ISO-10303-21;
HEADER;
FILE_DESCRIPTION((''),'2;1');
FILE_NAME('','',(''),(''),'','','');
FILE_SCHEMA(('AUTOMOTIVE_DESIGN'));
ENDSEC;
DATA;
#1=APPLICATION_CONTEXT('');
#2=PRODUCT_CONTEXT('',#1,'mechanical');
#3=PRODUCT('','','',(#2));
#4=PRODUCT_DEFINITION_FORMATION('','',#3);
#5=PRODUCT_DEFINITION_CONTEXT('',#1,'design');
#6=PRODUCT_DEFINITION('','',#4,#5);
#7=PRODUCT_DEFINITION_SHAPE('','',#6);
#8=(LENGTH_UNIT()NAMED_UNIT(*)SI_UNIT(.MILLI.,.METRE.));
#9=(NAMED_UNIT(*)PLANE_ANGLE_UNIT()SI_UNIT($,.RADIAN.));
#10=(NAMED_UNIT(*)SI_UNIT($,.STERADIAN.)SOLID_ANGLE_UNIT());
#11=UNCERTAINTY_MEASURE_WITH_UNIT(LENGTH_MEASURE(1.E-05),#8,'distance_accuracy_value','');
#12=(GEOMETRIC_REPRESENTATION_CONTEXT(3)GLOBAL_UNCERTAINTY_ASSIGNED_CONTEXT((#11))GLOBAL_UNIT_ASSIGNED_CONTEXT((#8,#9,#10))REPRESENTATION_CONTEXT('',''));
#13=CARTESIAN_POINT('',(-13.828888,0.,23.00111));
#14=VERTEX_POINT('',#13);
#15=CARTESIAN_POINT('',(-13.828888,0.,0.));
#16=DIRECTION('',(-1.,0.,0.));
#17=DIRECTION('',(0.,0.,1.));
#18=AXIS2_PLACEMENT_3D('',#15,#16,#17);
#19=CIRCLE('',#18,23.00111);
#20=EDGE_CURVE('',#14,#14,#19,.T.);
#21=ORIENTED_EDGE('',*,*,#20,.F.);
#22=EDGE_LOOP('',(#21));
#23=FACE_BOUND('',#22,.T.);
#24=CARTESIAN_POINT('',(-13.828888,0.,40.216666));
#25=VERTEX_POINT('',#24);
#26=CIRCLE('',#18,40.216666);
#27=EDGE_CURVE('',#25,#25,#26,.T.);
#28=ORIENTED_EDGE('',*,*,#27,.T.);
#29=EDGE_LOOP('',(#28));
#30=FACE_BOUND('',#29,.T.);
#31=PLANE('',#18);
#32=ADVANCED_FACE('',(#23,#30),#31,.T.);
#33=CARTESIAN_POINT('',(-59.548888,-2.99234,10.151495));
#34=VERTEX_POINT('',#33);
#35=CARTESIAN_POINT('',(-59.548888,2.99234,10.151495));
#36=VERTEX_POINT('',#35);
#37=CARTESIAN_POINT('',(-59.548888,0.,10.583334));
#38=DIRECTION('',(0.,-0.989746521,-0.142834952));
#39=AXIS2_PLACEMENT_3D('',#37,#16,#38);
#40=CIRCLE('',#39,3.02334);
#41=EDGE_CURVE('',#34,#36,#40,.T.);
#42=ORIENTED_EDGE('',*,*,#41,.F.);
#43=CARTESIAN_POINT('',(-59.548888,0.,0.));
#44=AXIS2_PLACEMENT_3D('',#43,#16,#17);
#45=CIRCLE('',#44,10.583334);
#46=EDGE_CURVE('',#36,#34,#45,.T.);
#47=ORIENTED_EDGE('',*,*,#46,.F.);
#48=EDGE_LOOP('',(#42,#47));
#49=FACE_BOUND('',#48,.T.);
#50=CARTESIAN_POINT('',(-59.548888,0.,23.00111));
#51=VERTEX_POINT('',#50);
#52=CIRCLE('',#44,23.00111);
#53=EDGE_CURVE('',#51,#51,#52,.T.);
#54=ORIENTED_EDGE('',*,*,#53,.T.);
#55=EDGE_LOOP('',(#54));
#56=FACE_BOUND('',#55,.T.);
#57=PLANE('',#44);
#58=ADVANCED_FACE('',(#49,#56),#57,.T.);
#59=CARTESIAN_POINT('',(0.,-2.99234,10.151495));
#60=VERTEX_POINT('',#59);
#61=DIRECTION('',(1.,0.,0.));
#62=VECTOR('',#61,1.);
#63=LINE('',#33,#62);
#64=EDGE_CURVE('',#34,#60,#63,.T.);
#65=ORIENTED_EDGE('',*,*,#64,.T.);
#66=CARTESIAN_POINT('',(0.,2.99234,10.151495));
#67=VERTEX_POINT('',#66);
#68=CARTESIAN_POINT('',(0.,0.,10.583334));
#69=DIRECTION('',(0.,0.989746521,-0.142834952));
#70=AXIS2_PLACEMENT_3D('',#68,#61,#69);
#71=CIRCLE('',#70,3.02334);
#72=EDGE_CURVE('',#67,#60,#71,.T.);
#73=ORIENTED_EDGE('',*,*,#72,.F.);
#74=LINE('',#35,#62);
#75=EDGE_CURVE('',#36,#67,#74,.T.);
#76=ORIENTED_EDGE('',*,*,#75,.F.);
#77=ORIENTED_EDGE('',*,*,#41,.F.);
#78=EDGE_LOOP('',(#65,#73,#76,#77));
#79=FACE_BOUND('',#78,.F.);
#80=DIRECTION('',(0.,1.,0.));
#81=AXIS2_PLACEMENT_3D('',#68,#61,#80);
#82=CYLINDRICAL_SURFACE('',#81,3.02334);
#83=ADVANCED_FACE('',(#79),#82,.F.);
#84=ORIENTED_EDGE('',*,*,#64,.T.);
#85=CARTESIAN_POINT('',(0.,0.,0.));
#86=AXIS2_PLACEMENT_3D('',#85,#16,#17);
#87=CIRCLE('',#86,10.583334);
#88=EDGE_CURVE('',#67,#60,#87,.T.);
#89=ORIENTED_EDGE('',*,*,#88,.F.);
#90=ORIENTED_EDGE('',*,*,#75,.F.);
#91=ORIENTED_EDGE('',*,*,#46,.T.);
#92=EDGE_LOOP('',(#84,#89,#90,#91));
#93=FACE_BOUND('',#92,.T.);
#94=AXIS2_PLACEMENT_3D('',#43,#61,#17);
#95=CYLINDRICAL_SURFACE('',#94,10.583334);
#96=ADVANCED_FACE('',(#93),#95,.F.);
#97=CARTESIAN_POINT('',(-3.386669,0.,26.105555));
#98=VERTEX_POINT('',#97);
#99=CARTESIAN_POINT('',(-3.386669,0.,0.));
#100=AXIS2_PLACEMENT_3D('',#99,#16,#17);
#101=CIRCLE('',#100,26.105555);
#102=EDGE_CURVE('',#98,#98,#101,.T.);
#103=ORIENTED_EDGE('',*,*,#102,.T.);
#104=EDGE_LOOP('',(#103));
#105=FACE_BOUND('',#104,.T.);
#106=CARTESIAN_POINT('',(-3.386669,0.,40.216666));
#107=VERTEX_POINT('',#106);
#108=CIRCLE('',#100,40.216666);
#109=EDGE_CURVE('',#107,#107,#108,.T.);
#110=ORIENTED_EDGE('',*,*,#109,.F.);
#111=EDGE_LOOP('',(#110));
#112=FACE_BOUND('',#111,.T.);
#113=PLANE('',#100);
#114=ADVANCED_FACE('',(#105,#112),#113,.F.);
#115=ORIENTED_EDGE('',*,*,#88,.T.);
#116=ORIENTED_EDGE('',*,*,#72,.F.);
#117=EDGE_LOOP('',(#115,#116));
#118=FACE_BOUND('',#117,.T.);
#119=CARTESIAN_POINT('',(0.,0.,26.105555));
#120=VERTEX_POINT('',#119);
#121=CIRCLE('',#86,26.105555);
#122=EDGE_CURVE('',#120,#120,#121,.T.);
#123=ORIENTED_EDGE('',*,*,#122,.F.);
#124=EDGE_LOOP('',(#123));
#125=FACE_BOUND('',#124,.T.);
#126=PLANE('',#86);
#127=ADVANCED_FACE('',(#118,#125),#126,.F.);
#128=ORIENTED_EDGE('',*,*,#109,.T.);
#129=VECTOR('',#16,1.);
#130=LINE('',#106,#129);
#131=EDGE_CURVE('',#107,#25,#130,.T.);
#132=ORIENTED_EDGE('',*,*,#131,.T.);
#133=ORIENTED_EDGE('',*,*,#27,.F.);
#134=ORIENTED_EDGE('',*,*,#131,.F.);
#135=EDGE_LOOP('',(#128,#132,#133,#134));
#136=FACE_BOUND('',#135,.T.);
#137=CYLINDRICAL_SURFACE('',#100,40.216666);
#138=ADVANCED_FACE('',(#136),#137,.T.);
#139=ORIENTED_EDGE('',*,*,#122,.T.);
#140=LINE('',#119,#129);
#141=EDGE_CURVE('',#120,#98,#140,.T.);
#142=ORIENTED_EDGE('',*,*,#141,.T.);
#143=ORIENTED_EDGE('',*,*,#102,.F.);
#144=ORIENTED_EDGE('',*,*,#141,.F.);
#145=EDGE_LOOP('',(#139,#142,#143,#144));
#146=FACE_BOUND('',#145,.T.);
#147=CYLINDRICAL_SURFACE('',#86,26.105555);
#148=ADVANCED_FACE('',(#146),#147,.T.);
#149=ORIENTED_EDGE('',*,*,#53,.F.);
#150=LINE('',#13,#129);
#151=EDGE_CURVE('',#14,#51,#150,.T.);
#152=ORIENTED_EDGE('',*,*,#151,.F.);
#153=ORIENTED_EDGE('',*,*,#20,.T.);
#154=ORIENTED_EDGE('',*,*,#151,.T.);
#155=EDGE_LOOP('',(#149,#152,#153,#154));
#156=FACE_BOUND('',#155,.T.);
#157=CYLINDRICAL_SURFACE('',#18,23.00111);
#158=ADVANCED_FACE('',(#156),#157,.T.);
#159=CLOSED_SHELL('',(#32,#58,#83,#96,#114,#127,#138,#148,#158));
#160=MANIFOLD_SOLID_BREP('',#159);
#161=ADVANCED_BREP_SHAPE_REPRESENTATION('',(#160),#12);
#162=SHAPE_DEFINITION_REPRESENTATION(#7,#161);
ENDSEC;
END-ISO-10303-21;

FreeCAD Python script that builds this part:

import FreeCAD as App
import Part
import Sketcher
Q = App.Units.Quantity

doc = App.newDocument("Part")
body = doc.addObject("PartDesign::Body", "Body")

sketch1 = body.newObject("Sketcher::SketchObject", "Sketch")
sketch1.AttachmentSupport = (doc.getObject("XZ_Plane"), [""])
sketch1.MapMode = "FlatFace"
sketch1.addGeometry(Part.LineSegment(App.Vector(-59.548888, 10.583334, 0), App.Vector(0, 10.583334, 0)), False)
sketch1.addGeometry(Part.LineSegment(App.Vector(0, 10.583334, 0), App.Vector(0, 26.105555, 0)), False)
sketch1.addGeometry(Part.LineSegment(App.Vector(0, 26.105555, 0), App.Vector(-3.386669, 26.105555, 0)), False)
sketch1.addGeometry(Part.LineSegment(App.Vector(-3.386669, 26.105555, 0), App.Vector(-3.386669, 40.216666, 0)), False)
sketch1.addGeometry(Part.LineSegment(App.Vector(-3.386669, 40.216666, 0), App.Vector(-13.828888, 40.216666, 0)), False)
sketch1.addGeometry(Part.LineSegment(App.Vector(-13.828888, 40.216666, 0), App.Vector(-13.828888, 23.00111, 0)), False)
sketch1.addGeometry(Part.LineSegment(App.Vector(-13.828888, 23.00111, 0), App.Vector(-59.548888, 23.00111, 0)), False)
sketch1.addGeometry(Part.LineSegment(App.Vector(-59.548888, 23.00111, 0), App.Vector(-59.548888, 10.583334, 0)), False)
sketch1.addConstraint(Sketcher.Constraint("Coincident", 0, 2, 1, 1))
sketch1.addConstraint(Sketcher.Constraint("Coincident", 1, 2, 2, 1))
sketch1.addConstraint(Sketcher.Constraint("Coincident", 2, 2, 3, 1))
sketch1.addConstraint(Sketcher.Constraint("Coincident", 3, 2, 4, 1))
sketch1.addConstraint(Sketcher.Constraint("Coincident", 4, 2, 5, 1))
sketch1.addConstraint(Sketcher.Constraint("Coincident", 5, 2, 6, 1))
sketch1.addConstraint(Sketcher.Constraint("Coincident", 6, 2, 7, 1))
sketch1.addConstraint(Sketcher.Constraint("Coincident", 7, 2, 0, 1))
sketch1.addConstraint(Sketcher.Constraint("Horizontal", 0))
sketch1.addConstraint(Sketcher.Constraint("Vertical", 1))
sketch1.addConstraint(Sketcher.Constraint("Horizontal", 2))
sketch1.addConstraint(Sketcher.Constraint("Vertical", 3))
sketch1.addConstraint(Sketcher.Constraint("Horizontal", 4))
sketch1.addConstraint(Sketcher.Constraint("Vertical", 5))
sketch1.addConstraint(Sketcher.Constraint("Horizontal", 6))
sketch1.addConstraint(Sketcher.Constraint("Vertical", 7))
sketch1.addConstraint(Sketcher.Constraint("PointOnObject", 0, 2, -2))
sketch1.addConstraint(Sketcher.Constraint("DistanceX", 6, 2, 6, 1, Q("1.8 in")))
sketch1.addConstraint(Sketcher.Constraint("DistanceX", 2, 2, 2, 1, 3.386669))
sketch1.addConstraint(Sketcher.Constraint("DistanceX", 4, 2, 4, 1, 10.442219))
sketch1.addConstraint(Sketcher.Constraint("DistanceY", 1, 1, 1, 2, 15.522221))
sketch1.addConstraint(Sketcher.Constraint("DistanceY", 3, 1, 3, 2, 14.111111))
sketch1.addConstraint(Sketcher.Constraint("DistanceY", 5, 2, 5, 1, 17.215556))
sketch1.addConstraint(Sketcher.Constraint("DistanceY", -1, 1, 5, 2, 23.00111))
revolution = body.newObject("PartDesign::Revolution", "Revolution")
revolution.Profile = sketch1
revolution.ReferenceAxis = (sketch1, ["H_Axis"])
revolution.Angle = 360

sketch2 = body.newObject("Sketcher::SketchObject", "Sketch001")
sketch2.AttachmentSupport = (doc.getObject("YZ_Plane"), [""])
sketch2.MapMode = "FlatFace"
sketch2.addGeometry(Part.Circle(App.Vector(0, 10.583334, 0), App.Vector(0, 0, 1), 3.02334), False)
sketch2.addConstraint(Sketcher.Constraint("PointOnObject", 0, 3, -2))
sketch2.addConstraint(Sketcher.Constraint("Diameter", 0, 6.04668))
sketch2.addConstraint(Sketcher.Constraint("DistanceY", -1, 1, 0, 3, 10.583334))
pocket1 = body.newObject("PartDesign::Pocket", "Pocket")
pocket1.Profile = sketch2
pocket1.Type = "ThroughAll"

doc.recompute()
